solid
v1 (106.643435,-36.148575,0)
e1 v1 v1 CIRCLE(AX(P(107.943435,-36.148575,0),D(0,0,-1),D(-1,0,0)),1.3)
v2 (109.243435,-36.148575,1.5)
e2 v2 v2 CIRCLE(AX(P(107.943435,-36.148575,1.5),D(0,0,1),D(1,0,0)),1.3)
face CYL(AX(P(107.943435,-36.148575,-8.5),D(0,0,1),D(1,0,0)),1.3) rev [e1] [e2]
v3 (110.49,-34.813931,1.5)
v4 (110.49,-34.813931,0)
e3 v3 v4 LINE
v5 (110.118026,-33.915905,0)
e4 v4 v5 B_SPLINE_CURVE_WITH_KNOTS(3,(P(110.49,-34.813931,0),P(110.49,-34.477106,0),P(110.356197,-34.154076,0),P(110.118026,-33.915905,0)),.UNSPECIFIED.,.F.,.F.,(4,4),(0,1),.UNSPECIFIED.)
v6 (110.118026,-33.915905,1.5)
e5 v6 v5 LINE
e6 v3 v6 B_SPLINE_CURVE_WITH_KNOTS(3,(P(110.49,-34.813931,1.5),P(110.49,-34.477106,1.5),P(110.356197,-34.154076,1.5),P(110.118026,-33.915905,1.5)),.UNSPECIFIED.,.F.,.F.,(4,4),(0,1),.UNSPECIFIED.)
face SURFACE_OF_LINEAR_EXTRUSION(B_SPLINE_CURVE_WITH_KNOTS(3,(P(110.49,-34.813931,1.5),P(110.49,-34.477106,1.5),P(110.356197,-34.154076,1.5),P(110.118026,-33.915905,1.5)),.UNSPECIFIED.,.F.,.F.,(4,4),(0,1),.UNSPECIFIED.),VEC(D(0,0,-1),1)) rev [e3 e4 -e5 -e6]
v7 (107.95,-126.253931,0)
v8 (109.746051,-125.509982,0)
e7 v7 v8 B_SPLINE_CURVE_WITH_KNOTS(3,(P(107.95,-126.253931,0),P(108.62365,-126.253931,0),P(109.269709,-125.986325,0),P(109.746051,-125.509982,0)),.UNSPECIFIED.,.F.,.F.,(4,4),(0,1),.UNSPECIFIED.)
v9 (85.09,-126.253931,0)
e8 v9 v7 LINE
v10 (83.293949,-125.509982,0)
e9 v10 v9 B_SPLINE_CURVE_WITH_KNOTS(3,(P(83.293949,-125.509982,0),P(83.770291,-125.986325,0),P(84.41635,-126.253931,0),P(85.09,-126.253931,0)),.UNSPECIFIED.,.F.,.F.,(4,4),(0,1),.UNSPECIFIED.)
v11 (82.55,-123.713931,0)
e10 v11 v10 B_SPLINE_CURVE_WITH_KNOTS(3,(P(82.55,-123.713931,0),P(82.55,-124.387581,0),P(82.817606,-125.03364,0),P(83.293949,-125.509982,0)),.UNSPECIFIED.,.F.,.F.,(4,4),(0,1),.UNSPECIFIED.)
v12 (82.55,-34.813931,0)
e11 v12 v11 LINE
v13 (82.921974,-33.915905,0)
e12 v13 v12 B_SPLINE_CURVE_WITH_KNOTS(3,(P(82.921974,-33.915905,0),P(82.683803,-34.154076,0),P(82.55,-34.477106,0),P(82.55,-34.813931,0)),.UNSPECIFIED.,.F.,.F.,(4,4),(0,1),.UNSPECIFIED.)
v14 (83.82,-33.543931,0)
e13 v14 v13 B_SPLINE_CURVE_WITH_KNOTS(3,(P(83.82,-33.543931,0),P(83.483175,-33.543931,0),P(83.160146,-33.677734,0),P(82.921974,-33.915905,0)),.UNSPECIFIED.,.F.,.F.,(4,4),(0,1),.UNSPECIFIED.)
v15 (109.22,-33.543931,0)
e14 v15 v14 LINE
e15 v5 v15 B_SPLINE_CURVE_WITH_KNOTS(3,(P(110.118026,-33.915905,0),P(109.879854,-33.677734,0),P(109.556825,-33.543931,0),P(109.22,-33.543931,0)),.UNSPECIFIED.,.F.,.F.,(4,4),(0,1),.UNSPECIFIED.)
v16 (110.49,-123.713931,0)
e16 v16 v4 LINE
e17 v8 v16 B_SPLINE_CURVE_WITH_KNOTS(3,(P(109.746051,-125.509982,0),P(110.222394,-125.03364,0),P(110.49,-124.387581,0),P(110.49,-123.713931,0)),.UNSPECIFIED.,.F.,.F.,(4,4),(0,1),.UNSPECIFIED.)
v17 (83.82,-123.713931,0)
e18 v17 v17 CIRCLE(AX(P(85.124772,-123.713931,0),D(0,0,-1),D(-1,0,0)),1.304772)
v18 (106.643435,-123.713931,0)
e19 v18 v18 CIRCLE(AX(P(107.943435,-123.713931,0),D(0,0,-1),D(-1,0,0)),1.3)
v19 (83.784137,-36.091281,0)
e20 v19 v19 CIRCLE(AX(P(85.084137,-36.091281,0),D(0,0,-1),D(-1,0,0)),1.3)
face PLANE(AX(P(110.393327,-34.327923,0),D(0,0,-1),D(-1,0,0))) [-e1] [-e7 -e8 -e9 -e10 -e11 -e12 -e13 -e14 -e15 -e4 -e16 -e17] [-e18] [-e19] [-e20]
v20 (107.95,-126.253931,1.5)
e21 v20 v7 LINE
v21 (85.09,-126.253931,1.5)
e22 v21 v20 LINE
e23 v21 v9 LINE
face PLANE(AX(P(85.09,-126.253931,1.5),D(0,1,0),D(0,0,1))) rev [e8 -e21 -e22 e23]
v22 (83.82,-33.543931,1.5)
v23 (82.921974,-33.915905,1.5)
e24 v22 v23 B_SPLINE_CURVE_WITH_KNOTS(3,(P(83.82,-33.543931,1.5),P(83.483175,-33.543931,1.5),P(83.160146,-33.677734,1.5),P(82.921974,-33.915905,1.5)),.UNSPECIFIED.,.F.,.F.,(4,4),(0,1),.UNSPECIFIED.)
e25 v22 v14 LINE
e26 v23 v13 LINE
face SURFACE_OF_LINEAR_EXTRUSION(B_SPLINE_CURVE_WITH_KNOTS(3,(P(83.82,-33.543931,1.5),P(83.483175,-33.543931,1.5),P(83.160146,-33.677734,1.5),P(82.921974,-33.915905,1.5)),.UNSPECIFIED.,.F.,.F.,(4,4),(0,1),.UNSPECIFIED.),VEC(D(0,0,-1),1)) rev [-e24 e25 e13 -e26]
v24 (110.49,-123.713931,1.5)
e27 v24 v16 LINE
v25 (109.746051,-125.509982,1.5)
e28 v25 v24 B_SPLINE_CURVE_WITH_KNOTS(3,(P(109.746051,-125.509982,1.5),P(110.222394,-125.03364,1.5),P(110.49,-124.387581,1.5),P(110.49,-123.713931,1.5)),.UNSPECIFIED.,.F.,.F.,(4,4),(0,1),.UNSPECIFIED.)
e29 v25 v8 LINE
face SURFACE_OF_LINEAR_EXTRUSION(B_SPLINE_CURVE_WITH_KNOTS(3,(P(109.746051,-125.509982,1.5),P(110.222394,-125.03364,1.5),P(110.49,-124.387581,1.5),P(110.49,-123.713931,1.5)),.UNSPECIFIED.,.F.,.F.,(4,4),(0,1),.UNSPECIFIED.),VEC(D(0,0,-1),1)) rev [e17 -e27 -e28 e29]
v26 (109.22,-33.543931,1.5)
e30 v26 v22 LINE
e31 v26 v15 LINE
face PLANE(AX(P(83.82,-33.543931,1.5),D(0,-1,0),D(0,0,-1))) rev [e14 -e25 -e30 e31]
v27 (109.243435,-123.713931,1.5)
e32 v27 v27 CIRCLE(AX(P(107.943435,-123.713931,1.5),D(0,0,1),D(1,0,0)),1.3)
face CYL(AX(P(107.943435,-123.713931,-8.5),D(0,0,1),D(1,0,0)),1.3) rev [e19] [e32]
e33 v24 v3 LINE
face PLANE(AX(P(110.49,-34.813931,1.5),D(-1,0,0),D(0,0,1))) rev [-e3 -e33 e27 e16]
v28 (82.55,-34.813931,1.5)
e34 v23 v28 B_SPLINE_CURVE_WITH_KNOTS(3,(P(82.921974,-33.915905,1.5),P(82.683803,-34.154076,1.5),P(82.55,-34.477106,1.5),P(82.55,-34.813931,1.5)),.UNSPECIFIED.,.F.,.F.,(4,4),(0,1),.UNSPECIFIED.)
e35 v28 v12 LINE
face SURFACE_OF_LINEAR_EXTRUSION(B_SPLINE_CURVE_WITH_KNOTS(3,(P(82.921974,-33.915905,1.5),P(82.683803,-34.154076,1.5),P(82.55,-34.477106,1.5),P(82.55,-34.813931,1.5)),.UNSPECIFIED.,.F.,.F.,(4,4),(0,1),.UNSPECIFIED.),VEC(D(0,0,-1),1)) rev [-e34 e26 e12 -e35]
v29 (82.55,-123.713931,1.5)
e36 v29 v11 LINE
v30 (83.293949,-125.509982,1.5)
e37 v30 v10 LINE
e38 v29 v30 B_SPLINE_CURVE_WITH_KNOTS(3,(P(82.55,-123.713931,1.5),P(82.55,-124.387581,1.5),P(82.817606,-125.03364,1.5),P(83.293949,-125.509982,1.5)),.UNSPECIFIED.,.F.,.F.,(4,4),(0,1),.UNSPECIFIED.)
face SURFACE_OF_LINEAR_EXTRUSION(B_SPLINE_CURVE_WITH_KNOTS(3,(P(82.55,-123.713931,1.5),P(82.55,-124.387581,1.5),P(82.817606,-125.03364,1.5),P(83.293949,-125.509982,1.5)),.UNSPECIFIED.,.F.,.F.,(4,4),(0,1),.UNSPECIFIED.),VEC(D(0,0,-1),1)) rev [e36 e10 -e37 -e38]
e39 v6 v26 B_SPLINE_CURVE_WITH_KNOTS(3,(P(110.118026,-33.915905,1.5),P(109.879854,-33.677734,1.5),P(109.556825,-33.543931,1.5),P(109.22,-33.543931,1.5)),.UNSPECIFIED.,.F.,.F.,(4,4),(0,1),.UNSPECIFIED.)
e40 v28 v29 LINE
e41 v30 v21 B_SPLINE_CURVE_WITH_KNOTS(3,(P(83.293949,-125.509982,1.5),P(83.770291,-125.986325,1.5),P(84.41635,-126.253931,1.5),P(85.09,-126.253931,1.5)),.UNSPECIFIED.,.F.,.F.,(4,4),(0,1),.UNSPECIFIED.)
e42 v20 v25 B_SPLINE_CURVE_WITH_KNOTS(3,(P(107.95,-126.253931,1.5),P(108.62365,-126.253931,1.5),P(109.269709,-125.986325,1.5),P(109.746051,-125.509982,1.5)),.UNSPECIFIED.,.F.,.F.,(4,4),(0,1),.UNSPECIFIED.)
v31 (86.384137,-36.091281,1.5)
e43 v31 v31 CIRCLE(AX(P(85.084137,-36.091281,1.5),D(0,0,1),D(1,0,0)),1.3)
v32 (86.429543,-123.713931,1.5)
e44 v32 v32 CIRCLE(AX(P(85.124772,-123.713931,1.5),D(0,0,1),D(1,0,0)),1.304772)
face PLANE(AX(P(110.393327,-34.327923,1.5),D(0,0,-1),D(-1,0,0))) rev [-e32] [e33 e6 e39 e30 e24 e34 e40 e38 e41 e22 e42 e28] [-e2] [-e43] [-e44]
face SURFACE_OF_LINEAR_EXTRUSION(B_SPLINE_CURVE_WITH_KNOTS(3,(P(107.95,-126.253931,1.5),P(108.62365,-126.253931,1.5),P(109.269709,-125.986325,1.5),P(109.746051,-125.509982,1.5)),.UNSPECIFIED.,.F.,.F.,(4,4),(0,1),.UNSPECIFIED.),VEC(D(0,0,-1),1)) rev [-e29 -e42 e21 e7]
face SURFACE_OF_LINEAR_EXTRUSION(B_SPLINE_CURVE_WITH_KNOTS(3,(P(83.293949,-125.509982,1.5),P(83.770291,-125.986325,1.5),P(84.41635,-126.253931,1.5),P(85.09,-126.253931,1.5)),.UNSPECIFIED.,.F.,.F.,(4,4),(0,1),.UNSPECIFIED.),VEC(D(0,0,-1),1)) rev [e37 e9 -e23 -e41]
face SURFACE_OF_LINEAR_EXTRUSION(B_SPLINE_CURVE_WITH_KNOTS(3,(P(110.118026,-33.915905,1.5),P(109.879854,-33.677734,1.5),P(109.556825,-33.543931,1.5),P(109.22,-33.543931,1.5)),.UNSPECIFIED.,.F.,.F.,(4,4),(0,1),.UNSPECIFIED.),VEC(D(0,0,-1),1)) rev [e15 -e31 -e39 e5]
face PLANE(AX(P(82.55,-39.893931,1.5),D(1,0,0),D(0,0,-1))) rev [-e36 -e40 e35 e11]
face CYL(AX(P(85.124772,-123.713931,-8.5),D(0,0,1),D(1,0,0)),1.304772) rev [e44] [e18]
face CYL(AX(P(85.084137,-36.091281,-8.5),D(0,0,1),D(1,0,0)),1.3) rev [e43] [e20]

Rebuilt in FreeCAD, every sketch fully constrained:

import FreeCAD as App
import Part
import Sketcher
Q = App.Units.Quantity

doc = App.newDocument("Part")
body = doc.addObject("PartDesign::Body", "Body")

# Sketch on XY plane
sketch1 = doc.addObject("Sketcher::SketchObject", "Sketch")
body.addObject(sketch1)
sketch1.AttachmentSupport = (doc.XY_Plane, [""])
sketch1.MapMode = "FlatFace"
sketch1.addGeometry([
    Part.LineSegment(App.Vector(110.49, -123.713931, 0), App.Vector(110.49, -34.813931, 0)),  # 0
    Part.BSplineCurve([App.Vector(110.49, -34.813931, 0), App.Vector(110.49, -34.477106, 0), App.Vector(110.356197, -34.154076, 0), App.Vector(110.118026, -33.915905, 0)], [4, 4], [0, 1], False, 3, [1, 1, 1, 1], False),  # 1
    Part.BSplineCurve([App.Vector(110.118026, -33.915905, 0), App.Vector(109.879854, -33.677734, 0), App.Vector(109.556825, -33.543931, 0), App.Vector(109.22, -33.543931, 0)], [4, 4], [0, 1], False, 3, [1, 1, 1, 1], False),  # 2
    Part.LineSegment(App.Vector(109.22, -33.543931, 0), App.Vector(83.82, -33.543931, 0)),  # 3
    Part.BSplineCurve([App.Vector(83.82, -33.543931, 0), App.Vector(83.483175, -33.543931, 0), App.Vector(83.160146, -33.677734, 0), App.Vector(82.921974, -33.915905, 0)], [4, 4], [0, 1], False, 3, [1, 1, 1, 1], False),  # 4
    Part.BSplineCurve([App.Vector(82.921974, -33.915905, 0), App.Vector(82.683803, -34.154076, 0), App.Vector(82.55, -34.477106, 0), App.Vector(82.55, -34.813931, 0)], [4, 4], [0, 1], False, 3, [1, 1, 1, 1], False),  # 5
    Part.LineSegment(App.Vector(82.55, -34.813931, 0), App.Vector(82.55, -123.713931, 0)),  # 6
    Part.BSplineCurve([App.Vector(82.55, -123.713931, 0), App.Vector(82.55, -124.387581, 0), App.Vector(82.817606, -125.03364, 0), App.Vector(83.293949, -125.509982, 0)], [4, 4], [0, 1], False, 3, [1, 1, 1, 1], False),  # 7
    Part.BSplineCurve([App.Vector(83.293949, -125.509982, 0), App.Vector(83.770291, -125.986325, 0), App.Vector(84.41635, -126.253931, 0), App.Vector(85.09, -126.253931, 0)], [4, 4], [0, 1], False, 3, [1, 1, 1, 1], False),  # 8
    Part.LineSegment(App.Vector(85.09, -126.253931, 0), App.Vector(107.95, -126.253931, 0)),  # 9
    Part.BSplineCurve([App.Vector(107.95, -126.253931, 0), App.Vector(108.62365, -126.253931, 0), App.Vector(109.269709, -125.986325, 0), App.Vector(109.746051, -125.509982, 0)], [4, 4], [0, 1], False, 3, [1, 1, 1, 1], False),  # 10
    Part.BSplineCurve([App.Vector(109.746051, -125.509982, 0), App.Vector(110.222394, -125.03364, 0), App.Vector(110.49, -124.387581, 0), App.Vector(110.49, -123.713931, 0)], [4, 4], [0, 1], False, 3, [1, 1, 1, 1], False),  # 11
], False)
sketch1.addConstraint([
    Sketcher.Constraint("Block", 1),
    Sketcher.Constraint("Block", 2),
    Sketcher.Constraint("Block", 4),
    Sketcher.Constraint("Block", 5),
    Sketcher.Constraint("Block", 7),
    Sketcher.Constraint("Block", 8),
    Sketcher.Constraint("Block", 10),
    Sketcher.Constraint("Block", 11),
    Sketcher.Constraint("Coincident", 0, 2, 1, 1),
    Sketcher.Constraint("Coincident", 2, 2, 3, 1),
    Sketcher.Constraint("Coincident", 3, 2, 4, 1),
    Sketcher.Constraint("Coincident", 5, 2, 6, 1),
    Sketcher.Constraint("Coincident", 6, 2, 7, 1),
    Sketcher.Constraint("Coincident", 8, 2, 9, 1),
    Sketcher.Constraint("Coincident", 9, 2, 10, 1),
    Sketcher.Constraint("Coincident", 11, 2, 0, 1),
])
pad1 = doc.addObject("PartDesign::Pad", "Pad")
body.addObject(pad1)
pad1.Profile = sketch1
pad1.Length = 1.5

# Sketch on XY plane
sketch2 = doc.addObject("Sketcher::SketchObject", "Sketch001")
body.addObject(sketch2)
sketch2.AttachmentSupport = (doc.XY_Plane, [""])
sketch2.MapMode = "FlatFace"
sketch2.AttachmentOffset = App.Placement(App.Vector(0, 0, 1.5), App.Rotation())
sketch2.addGeometry([
    Part.Circle(App.Vector(85.124772, -123.713931, 0), App.Vector(0, 0, 1), 1.304772),
    Part.Circle(App.Vector(122.913558, -132.31769, 0), App.Vector(0, 0, 1), 1.27),
], False)
sketch2.addConstraint([
    Sketcher.Constraint("Diameter", 1, Q("0.1 in")),
    Sketcher.Constraint("Diameter", 0, Q("2.609543 mm")),
    Sketcher.Constraint("DistanceX", -1, 1, 0, 3, Q("85.124772 mm")),
    Sketcher.Constraint("DistanceY", 0, 3, -1, 1, Q("123.713931 mm")),
    Sketcher.Constraint("DistanceY", 1, 3, -1, 1, Q("132.31769 mm")),
    Sketcher.Constraint("DistanceX", -1, 1, 1, 3, Q("122.913558 mm")),
])
pocket1 = doc.addObject("PartDesign::Pocket", "Pocket")
body.addObject(pocket1)
pocket1.Profile = sketch2
pocket1.Length = 10

# Sketch on XY plane
sketch3 = doc.addObject("Sketcher::SketchObject", "Sketch002")
body.addObject(sketch3)
sketch3.AttachmentSupport = (doc.XY_Plane, [""])
sketch3.MapMode = "FlatFace"
sketch3.AttachmentOffset = App.Placement(App.Vector(0, 0, 1.5), App.Rotation())
sketch3.addGeometry([
    Part.Circle(App.Vector(107.943435, -36.148575, 0), App.Vector(0, 0, 1), 1.3),
    Part.Circle(App.Vector(85.084137, -36.091281, 0), App.Vector(0, 0, 1), 1.3),
    Part.Circle(App.Vector(107.943435, -123.713931, 0), App.Vector(0, 0, 1), 1.3),
], False)
sketch3.addConstraint([
    Sketcher.Constraint("Equal", 0, 1),
    Sketcher.Constraint("Equal", 1, 2),
    Sketcher.Constraint("Vertical", 0, 3, 2, 3),
    Sketcher.Constraint("Diameter", 0, Q("2.6 mm")),
    Sketcher.Constraint("DistanceY", 1, 3, -1, 1, Q("36.091281 mm")),
    Sketcher.Constraint("DistanceY", 2, 3, -1, 1, Q("123.713931 mm")),
    Sketcher.Constraint("DistanceX", -1, 1, 0, 3, Q("107.943435 mm")),
    Sketcher.Constraint("DistanceY", 0, 3, -1, 1, Q("36.148575 mm")),
    Sketcher.Constraint("DistanceX", -1, 1, 1, 3, Q("85.084137 mm")),
])
pocket2 = doc.addObject("PartDesign::Pocket", "Pocket001")
body.addObject(pocket2)
pocket2.Profile = sketch3
pocket2.Length = 10

doc.recompute()
